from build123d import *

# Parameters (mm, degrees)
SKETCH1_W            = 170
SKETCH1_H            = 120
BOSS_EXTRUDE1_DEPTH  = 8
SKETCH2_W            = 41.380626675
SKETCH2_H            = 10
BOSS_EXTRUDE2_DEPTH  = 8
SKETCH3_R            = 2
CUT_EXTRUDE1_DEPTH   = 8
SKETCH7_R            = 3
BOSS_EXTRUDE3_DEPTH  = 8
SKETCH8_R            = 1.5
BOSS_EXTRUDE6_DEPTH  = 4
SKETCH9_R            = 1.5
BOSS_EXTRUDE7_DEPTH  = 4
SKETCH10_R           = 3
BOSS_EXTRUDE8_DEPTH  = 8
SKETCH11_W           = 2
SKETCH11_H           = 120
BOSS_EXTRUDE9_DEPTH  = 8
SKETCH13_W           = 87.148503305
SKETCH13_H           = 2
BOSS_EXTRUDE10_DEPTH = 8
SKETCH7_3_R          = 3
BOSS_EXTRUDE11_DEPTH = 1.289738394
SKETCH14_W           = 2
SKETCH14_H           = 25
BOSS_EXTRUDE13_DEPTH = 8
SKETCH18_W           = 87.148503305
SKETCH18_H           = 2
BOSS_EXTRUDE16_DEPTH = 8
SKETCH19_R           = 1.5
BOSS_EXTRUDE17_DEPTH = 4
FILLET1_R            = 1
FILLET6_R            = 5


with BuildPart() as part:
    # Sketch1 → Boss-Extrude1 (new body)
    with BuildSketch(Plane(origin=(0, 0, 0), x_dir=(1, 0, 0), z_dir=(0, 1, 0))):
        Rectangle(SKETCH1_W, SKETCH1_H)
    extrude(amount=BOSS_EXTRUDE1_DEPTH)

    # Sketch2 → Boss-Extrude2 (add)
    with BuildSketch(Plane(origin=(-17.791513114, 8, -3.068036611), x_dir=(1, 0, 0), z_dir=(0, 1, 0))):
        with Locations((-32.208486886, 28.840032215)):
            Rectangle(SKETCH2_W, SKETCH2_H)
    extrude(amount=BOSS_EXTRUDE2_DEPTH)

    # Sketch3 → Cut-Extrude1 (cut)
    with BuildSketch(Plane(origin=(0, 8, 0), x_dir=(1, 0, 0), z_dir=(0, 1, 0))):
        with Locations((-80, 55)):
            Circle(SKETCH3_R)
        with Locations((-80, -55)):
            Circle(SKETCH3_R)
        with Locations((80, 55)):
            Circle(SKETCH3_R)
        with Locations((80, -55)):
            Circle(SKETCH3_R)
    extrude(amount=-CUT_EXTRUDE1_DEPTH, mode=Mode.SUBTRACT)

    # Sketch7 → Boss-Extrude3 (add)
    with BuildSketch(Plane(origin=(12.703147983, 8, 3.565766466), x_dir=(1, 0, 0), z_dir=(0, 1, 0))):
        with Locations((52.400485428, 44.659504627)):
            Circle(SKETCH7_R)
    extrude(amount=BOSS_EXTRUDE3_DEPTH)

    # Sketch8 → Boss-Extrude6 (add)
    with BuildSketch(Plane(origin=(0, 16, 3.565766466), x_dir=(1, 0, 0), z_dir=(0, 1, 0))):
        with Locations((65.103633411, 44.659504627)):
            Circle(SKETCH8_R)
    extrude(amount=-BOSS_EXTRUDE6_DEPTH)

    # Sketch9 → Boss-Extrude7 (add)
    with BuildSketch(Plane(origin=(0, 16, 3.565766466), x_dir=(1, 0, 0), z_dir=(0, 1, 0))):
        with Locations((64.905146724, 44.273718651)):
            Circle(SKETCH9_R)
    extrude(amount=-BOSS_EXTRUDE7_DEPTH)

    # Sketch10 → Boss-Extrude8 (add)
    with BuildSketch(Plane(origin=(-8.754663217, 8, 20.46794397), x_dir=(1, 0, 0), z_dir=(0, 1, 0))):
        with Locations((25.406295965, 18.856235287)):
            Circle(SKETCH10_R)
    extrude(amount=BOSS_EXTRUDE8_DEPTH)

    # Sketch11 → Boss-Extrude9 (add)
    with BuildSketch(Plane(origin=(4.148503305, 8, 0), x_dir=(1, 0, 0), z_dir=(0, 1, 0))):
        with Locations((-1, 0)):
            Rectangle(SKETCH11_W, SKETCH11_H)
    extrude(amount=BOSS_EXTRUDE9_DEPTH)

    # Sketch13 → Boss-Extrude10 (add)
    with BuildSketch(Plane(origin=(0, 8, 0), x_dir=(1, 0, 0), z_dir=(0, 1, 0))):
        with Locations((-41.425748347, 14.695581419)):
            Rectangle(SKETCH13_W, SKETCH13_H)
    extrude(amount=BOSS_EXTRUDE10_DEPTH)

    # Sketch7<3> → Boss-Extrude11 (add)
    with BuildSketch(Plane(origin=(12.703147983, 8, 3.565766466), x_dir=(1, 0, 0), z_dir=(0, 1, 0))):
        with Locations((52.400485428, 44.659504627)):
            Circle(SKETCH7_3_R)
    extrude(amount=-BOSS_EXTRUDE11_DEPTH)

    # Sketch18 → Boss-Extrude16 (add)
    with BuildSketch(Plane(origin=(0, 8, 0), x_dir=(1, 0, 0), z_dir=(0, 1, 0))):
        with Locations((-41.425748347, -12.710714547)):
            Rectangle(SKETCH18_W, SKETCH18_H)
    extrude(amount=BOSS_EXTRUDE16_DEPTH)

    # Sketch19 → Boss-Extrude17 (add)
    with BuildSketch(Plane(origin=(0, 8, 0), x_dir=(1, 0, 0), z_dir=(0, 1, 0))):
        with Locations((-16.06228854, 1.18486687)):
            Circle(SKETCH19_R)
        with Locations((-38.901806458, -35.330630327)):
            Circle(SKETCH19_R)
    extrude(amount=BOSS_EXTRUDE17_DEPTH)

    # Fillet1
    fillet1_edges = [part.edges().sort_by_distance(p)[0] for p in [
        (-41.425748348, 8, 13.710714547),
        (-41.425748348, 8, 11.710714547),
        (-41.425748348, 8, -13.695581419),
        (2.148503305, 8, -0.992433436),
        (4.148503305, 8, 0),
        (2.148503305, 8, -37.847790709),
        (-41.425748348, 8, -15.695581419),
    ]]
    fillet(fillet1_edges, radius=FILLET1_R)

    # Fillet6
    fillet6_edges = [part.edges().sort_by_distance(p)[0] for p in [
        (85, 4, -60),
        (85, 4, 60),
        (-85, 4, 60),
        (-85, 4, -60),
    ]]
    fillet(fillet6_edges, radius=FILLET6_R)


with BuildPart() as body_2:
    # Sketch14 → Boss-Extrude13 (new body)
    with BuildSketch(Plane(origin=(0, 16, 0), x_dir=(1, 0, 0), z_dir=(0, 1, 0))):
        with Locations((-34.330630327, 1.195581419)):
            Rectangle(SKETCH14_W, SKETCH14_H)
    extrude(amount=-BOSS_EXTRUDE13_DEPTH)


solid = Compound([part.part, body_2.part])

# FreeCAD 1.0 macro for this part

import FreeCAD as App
import Part
import Sketcher

V = App.Vector
Q = App.Units.Quantity


def edges_at(feature, points):
    """Names of the edges that pass closest to the given points."""
    edges = feature.Shape.Edges
    near = lambda p: min(range(len(edges)), key=lambda i: edges[i].distToShape(Part.Vertex(*p))[0])
    return sorted({f"Edge{near(p) + 1}" for p in points})

doc = App.newDocument("Part")
params = doc.addObject("Spreadsheet::Sheet", "Params")
for row, (alias, value) in enumerate([
    ("sketch1_width", "170 mm"),
    ("sketch1_height", "120 mm"),
    ("pad1_length", "8 mm"),
    ("sketch2_height", "10 mm"),
    ("pad2_length", "8 mm"),
    ("sketch3_diameter", "4 mm"),
    ("pocket1_length", "8 mm"),
    ("sketch4_diameter", "6 mm"),
    ("pad3_length", "8 mm"),
    ("sketch5_diameter", "3 mm"),
    ("pad4_length", "4 mm"),
    ("sketch6_diameter", "3 mm"),
    ("pad5_length", "4 mm"),
    ("sketch7_diameter", "6 mm"),
    ("pad6_length", "8 mm"),
    ("sketch8_width", "2 mm"),
    ("sketch8_height", "120 mm"),
    ("pad7_length", "8 mm"),
    ("sketch9_height", "2 mm"),
    ("pad8_length", "8 mm"),
    ("sketch10_diameter", "6 mm"),
    ("pad9_length", "1.289738 mm"),
    ("sketch11_height", "2 mm"),
    ("pad10_length", "8 mm"),
    ("sketch12_diameter", "3 mm"),
    ("pad11_length", "4 mm"),
    ("fillet_radius", "1 mm"),
    ("fillet2_radius", "5 mm"),
    ("sketch13_width", "2 mm"),
    ("sketch13_height", "25 mm"),
    ("pad12_length", "8 mm"),
], start=1):
    params.set(f"A{row}", alias)
    params.set(f"B{row}", "=" + value)
    params.setAlias(f"B{row}", alias)

body = doc.addObject("PartDesign::Body", "Body")

# Sketch on XZ plane
sketch1 = doc.addObject("Sketcher::SketchObject", "Sketch")
body.addObject(sketch1)
sketch1.AttachmentSupport = (doc.XZ_Plane, [""])
sketch1.MapMode = "FlatFace"
sketch1.addGeometry([
    Part.LineSegment(V(-85, -60, 0), V(-85, 60, 0)),
    Part.LineSegment(V(-85, 60, 0), V(85, 60, 0)),
    Part.LineSegment(V(85, 60, 0), V(85, -60, 0)),
    Part.LineSegment(V(85, -60, 0), V(-85, -60, 0)),
], False)
sketch1.addConstraint([
    Sketcher.Constraint("Coincident", 0, 2, 1, 1),
    Sketcher.Constraint("Coincident", 1, 2, 2, 1),
    Sketcher.Constraint("Coincident", 2, 2, 3, 1),
    Sketcher.Constraint("Coincident", 3, 2, 0, 1),
    Sketcher.Constraint("Vertical", 0),
    Sketcher.Constraint("Horizontal", 1),
    Sketcher.Constraint("Vertical", 2),
    Sketcher.Constraint("Horizontal", 3),
    Sketcher.Constraint("Symmetric", 0, 2, 2, 2, -1, 1),
    Sketcher.Constraint("DistanceX", 1, 1, 1, 2, Q("170 mm")),
    Sketcher.Constraint("DistanceY", 0, 1, 0, 2, Q("120 mm")),
])
sketch1.setExpression("Constraints[9]", "Params.sketch1_width")
sketch1.setExpression("Constraints[10]", "Params.sketch1_height")
pad1 = doc.addObject("PartDesign::Pad", "Pad")
body.addObject(pad1)
pad1.Profile = sketch1
pad1.setExpression("Length", "Params.pad1_length")
pad1.Reversed = True

# Sketch on XZ plane
sketch2 = doc.addObject("Sketcher::SketchObject", "Sketch001")
body.addObject(sketch2)
sketch2.AttachmentSupport = (doc.XZ_Plane, [""])
sketch2.MapMode = "FlatFace"
sketch2.AttachmentOffset = App.Placement(V(0, 0, -8), App.Rotation())
sketch2.addGeometry([
    Part.LineSegment(V(-71, -37, 0), V(-71, -27, 0)),
    Part.LineSegment(V(-71, -27, 0), V(-29, -27, 0)),
    Part.LineSegment(V(-29, -27, 0), V(-29, -37, 0)),
    Part.LineSegment(V(-29, -37, 0), V(-71, -37, 0)),
], False)
sketch2.addConstraint([
    Sketcher.Constraint("Coincident", 0, 2, 1, 1),
    Sketcher.Constraint("Coincident", 1, 2, 2, 1),
    Sketcher.Constraint("Coincident", 2, 2, 3, 1),
    Sketcher.Constraint("Coincident", 3, 2, 0, 1),
    Sketcher.Constraint("Vertical", 0),
    Sketcher.Constraint("Horizontal", 1),
    Sketcher.Constraint("Vertical", 2),
    Sketcher.Constraint("Horizontal", 3),
    Sketcher.Constraint("DistanceY", 0, 1, 0, 2, Q("10 mm")),
    Sketcher.Constraint("DistanceX", 1, 1, 1, 2, Q("41.380627 mm")),
    Sketcher.Constraint("DistanceY", 0, 2, -1, 1, Q("26.908069 mm")),
    Sketcher.Constraint("DistanceX", 0, 2, -1, 1, Q("70.690313 mm")),
])
sketch2.setExpression("Constraints[8]", "Params.sketch2_height")
pad2 = doc.addObject("PartDesign::Pad", "Pad001")
body.addObject(pad2)
pad2.Profile = sketch2
pad2.setExpression("Length", "Params.pad2_length")
pad2.Reversed = True

# Sketch on XZ plane
sketch3 = doc.addObject("Sketcher::SketchObject", "Sketch002")
body.addObject(sketch3)
sketch3.AttachmentSupport = (doc.XZ_Plane, [""])
sketch3.MapMode = "FlatFace"
sketch3.AttachmentOffset = App.Placement(V(0, 0, -8), App.Rotation())
sketch3.addGeometry([
    Part.Circle(V(-80, -55, 0), V(0, 0, 1), 2),
    Part.Circle(V(-80, 55, 0), V(0, 0, 1), 2),
    Part.Circle(V(80, -55, 0), V(0, 0, 1), 2),
    Part.Circle(V(80, 55, 0), V(0, 0, 1), 2),
], False)
sketch3.addConstraint([
    Sketcher.Constraint("Equal", 0, 1),
    Sketcher.Constraint("Equal", 1, 2),
    Sketcher.Constraint("Equal", 2, 3),
    Sketcher.Constraint("Symmetric", 1, 3, 2, 3, -1, 1),
    Sketcher.Constraint("Symmetric", 0, 3, 3, 3, -1, 1),
    Sketcher.Constraint("Symmetric", 0, 3, 2, 3, -2),
    Sketcher.Constraint("Diameter", 0, Q("4 mm")),
    Sketcher.Constraint("DistanceX", 0, 3, -1, 1, Q("80 mm")),
    Sketcher.Constraint("DistanceY", 0, 3, -1, 1, Q("55 mm")),
])
sketch3.setExpression("Constraints[6]", "Params.sketch3_diameter")
pocket1 = doc.addObject("PartDesign::Pocket", "Pocket")
body.addObject(pocket1)
pocket1.Profile = sketch3
pocket1.setExpression("Length", "Params.pocket1_length")
pocket1.Reversed = True

# Sketch on XZ plane
sketch4 = doc.addObject("Sketcher::SketchObject", "Sketch003")
body.addObject(sketch4)
sketch4.AttachmentSupport = (doc.XZ_Plane, [""])
sketch4.MapMode = "FlatFace"
sketch4.AttachmentOffset = App.Placement(V(0, 0, -8), App.Rotation())
sketch4.addGeometry(Part.Circle(V(65.1, -41.1, 0), V(0, 0, 1), 3), False)
sketch4.addConstraint([
    Sketcher.Constraint("Diameter", 0, Q("6 mm")),
    Sketcher.Constraint("DistanceY", 0, 3, -1, 1, Q("41.093738 mm")),
    Sketcher.Constraint("DistanceX", -1, 1, 0, 3, Q("65.103633 mm")),
])
sketch4.setExpression("Constraints[0]", "Params.sketch4_diameter")
pad3 = doc.addObject("PartDesign::Pad", "Pad002")
body.addObject(pad3)
pad3.Profile = sketch4
pad3.setExpression("Length", "Params.pad3_length")
pad3.Reversed = True

# Sketch on XZ plane
sketch5 = doc.addObject("Sketcher::SketchObject", "Sketch004")
body.addObject(sketch5)
sketch5.AttachmentSupport = (doc.XZ_Plane, [""])
sketch5.MapMode = "FlatFace"
sketch5.AttachmentOffset = App.Placement(V(0, 0, -16), App.Rotation())
sketch5.addGeometry(Part.Circle(V(65.1, -41.1, 0), V(0, 0, 1), 1.5), False)
sketch5.addConstraint([
    Sketcher.Constraint("Diameter", 0, Q("3 mm")),
    Sketcher.Constraint("DistanceY", 0, 3, -1, 1, Q("41.093738 mm")),
    Sketcher.Constraint("DistanceX", -1, 1, 0, 3, Q("65.103633 mm")),
])
sketch5.setExpression("Constraints[0]", "Params.sketch5_diameter")
pad4 = doc.addObject("PartDesign::Pad", "Pad003")
body.addObject(pad4)
pad4.Profile = sketch5
pad4.setExpression("Length", "Params.pad4_length")

# Sketch on XZ plane
sketch6 = doc.addObject("Sketcher::SketchObject", "Sketch005")
body.addObject(sketch6)
sketch6.AttachmentSupport = (doc.XZ_Plane, [""])
sketch6.MapMode = "FlatFace"
sketch6.AttachmentOffset = App.Placement(V(0, 0, -16), App.Rotation())
sketch6.addGeometry(Part.Circle(V(64.9, -40.7, 0), V(0, 0, 1), 1.5), False)
sketch6.addConstraint([
    Sketcher.Constraint("Diameter", 0, Q("3 mm")),
    Sketcher.Constraint("DistanceX", -1, 1, 0, 3, Q("64.905147 mm")),
    Sketcher.Constraint("DistanceY", 0, 3, -1, 1, Q("40.707952 mm")),
])
sketch6.setExpression("Constraints[0]", "Params.sketch6_diameter")
pad5 = doc.addObject("PartDesign::Pad", "Pad004")
body.addObject(pad5)
pad5.Profile = sketch6
pad5.setExpression("Length", "Params.pad5_length")

# Sketch on XZ plane
sketch7 = doc.addObject("Sketcher::SketchObject", "Sketch006")
body.addObject(sketch7)
sketch7.AttachmentSupport = (doc.XZ_Plane, [""])
sketch7.MapMode = "FlatFace"
sketch7.AttachmentOffset = App.Placement(V(0, 0, -8), App.Rotation())
sketch7.addGeometry(Part.Circle(V(16.7, 1.6, 0), V(0, 0, 1), 3), False)
sketch7.addConstraint([
    Sketcher.Constraint("Diameter", 0, Q("6 mm")),
    Sketcher.Constraint("DistanceY", -1, 1, 0, 3, Q("1.611709 mm")),
    Sketcher.Constraint("DistanceX", -1, 1, 0, 3, Q("16.651633 mm")),
])
sketch7.setExpression("Constraints[0]", "Params.sketch7_diameter")
pad6 = doc.addObject("PartDesign::Pad", "Pad005")
body.addObject(pad6)
pad6.Profile = sketch7
pad6.setExpression("Length", "Params.pad6_length")
pad6.Reversed = True

# Sketch on XZ plane
sketch8 = doc.addObject("Sketcher::SketchObject", "Sketch007")
body.addObject(sketch8)
sketch8.AttachmentSupport = (doc.XZ_Plane, [""])
sketch8.MapMode = "FlatFace"
sketch8.AttachmentOffset = App.Placement(V(0, 0, -8), App.Rotation())
sketch8.addGeometry([
    Part.LineSegment(V(2.1, -60, 0), V(2.1, 60, 0)),
    Part.LineSegment(V(2.1, 60, 0), V(4.1, 60, 0)),
    Part.LineSegment(V(4.1, 60, 0), V(4.1, -60, 0)),
    Part.LineSegment(V(4.1, -60, 0), V(2.1, -60, 0)),
], False)
sketch8.addConstraint([
    Sketcher.Constraint("Coincident", 0, 2, 1, 1),
    Sketcher.Constraint("Coincident", 1, 2, 2, 1),
    Sketcher.Constraint("Coincident", 2, 2, 3, 1),
    Sketcher.Constraint("Coincident", 3, 2, 0, 1),
    Sketcher.Constraint("Vertical", 0),
    Sketcher.Constraint("Horizontal", 1),
    Sketcher.Constraint("Vertical", 2),
    Sketcher.Constraint("Horizontal", 3),
    Sketcher.Constraint("DistanceX", 1, 1, 1, 2, Q("2 mm")),
    Sketcher.Constraint("DistanceY", 0, 1, 0, 2, Q("120 mm")),
    Sketcher.Constraint("DistanceY", -1, 1, 0, 2, Q("60 mm")),
    Sketcher.Constraint("DistanceX", -1, 1, 0, 2, Q("2.148503 mm")),
])
sketch8.setExpression("Constraints[8]", "Params.sketch8_width")
sketch8.setExpression("Constraints[9]", "Params.sketch8_height")
pad7 = doc.addObject("PartDesign::Pad", "Pad006")
body.addObject(pad7)
pad7.Profile = sketch8
pad7.setExpression("Length", "Params.pad7_length")
pad7.Reversed = True

# Sketch on XZ plane
sketch9 = doc.addObject("Sketcher::SketchObject", "Sketch008")
body.addObject(sketch9)
sketch9.AttachmentSupport = (doc.XZ_Plane, [""])
sketch9.MapMode = "FlatFace"
sketch9.AttachmentOffset = App.Placement(V(0, 0, -8), App.Rotation())
sketch9.addGeometry([
    Part.LineSegment(V(-85, -15.7, 0), V(-85, -13.7, 0)),
    Part.LineSegment(V(-85, -13.7, 0), V(2.1, -13.7, 0)),
    Part.LineSegment(V(2.1, -13.7, 0), V(2.1, -15.7, 0)),
    Part.LineSegment(V(2.1, -15.7, 0), V(-85, -15.7, 0)),
], False)
sketch9.addConstraint([
    Sketcher.Constraint("Coincident", 0, 2, 1, 1),
    Sketcher.Constraint("Coincident", 1, 2, 2, 1),
    Sketcher.Constraint("Coincident", 2, 2, 3, 1),
    Sketcher.Constraint("Coincident", 3, 2, 0, 1),
    Sketcher.Constraint("Vertical", 0),
    Sketcher.Constraint("Horizontal", 1),
    Sketcher.Constraint("Vertical", 2),
    Sketcher.Constraint("Horizontal", 3),
    Sketcher.Constraint("DistanceY", 0, 1, 0, 2, Q("2 mm")),
    Sketcher.Constraint("DistanceX", 0, 2, -1, 1, Q("85 mm")),
    Sketcher.Constraint("DistanceX", 1, 1, 1, 2, Q("87.148503 mm")),
    Sketcher.Constraint("DistanceY", 0, 2, -1, 1, Q("13.695581 mm")),
])
sketch9.setExpression("Constraints[8]", "Params.sketch9_height")
pad8 = doc.addObject("PartDesign::Pad", "Pad007")
body.addObject(pad8)
pad8.Profile = sketch9
pad8.setExpression("Length", "Params.pad8_length")
pad8.Reversed = True

# Sketch on XZ plane
sketch10 = doc.addObject("Sketcher::SketchObject", "Sketch009")
body.addObject(sketch10)
sketch10.AttachmentSupport = (doc.XZ_Plane, [""])
sketch10.MapMode = "FlatFace"
sketch10.AttachmentOffset = App.Placement(V(0, 0, -8), App.Rotation())
sketch10.addGeometry(Part.Circle(V(65.1, -41.1, 0), V(0, 0, 1), 3), False)
sketch10.addConstraint([
    Sketcher.Constraint("Diameter", 0, Q("6 mm")),
    Sketcher.Constraint("DistanceY", 0, 3, -1, 1, Q("41.093738 mm")),
    Sketcher.Constraint("DistanceX", -1, 1, 0, 3, Q("65.103633 mm")),
])
sketch10.setExpression("Constraints[0]", "Params.sketch10_diameter")
pad9 = doc.addObject("PartDesign::Pad", "Pad008")
body.addObject(pad9)
pad9.Profile = sketch10
pad9.setExpression("Length", "Params.pad9_length")

# Sketch on XZ plane
sketch11 = doc.addObject("Sketcher::SketchObject", "Sketch010")
body.addObject(sketch11)
sketch11.AttachmentSupport = (doc.XZ_Plane, [""])
sketch11.MapMode = "FlatFace"
sketch11.AttachmentOffset = App.Placement(V(0, 0, -8), App.Rotation())
sketch11.addGeometry([
    Part.LineSegment(V(-85, 11.7, 0), V(-85, 13.7, 0)),
    Part.LineSegment(V(-85, 13.7, 0), V(2.1, 13.7, 0)),
    Part.LineSegment(V(2.1, 13.7, 0), V(2.1, 11.7, 0)),
    Part.LineSegment(V(2.1, 11.7, 0), V(-85, 11.7, 0)),
], False)
sketch11.addConstraint([
    Sketcher.Constraint("Coincident", 0, 2, 1, 1),
    Sketcher.Constraint("Coincident", 1, 2, 2, 1),
    Sketcher.Constraint("Coincident", 2, 2, 3, 1),
    Sketcher.Constraint("Coincident", 3, 2, 0, 1),
    Sketcher.Constraint("Vertical", 0),
    Sketcher.Constraint("Horizontal", 1),
    Sketcher.Constraint("Vertical", 2),
    Sketcher.Constraint("Horizontal", 3),
    Sketcher.Constraint("DistanceY", 0, 1, 0, 2, Q("2 mm")),
    Sketcher.Constraint("DistanceX", 0, 2, -1, 1, Q("85 mm")),
    Sketcher.Constraint("DistanceX", 1, 1, 1, 2, Q("87.148503 mm")),
    Sketcher.Constraint("DistanceY", -1, 1, 0, 2, Q("13.710715 mm")),
])
sketch11.setExpression("Constraints[8]", "Params.sketch11_height")
pad10 = doc.addObject("PartDesign::Pad", "Pad009")
body.addObject(pad10)
pad10.Profile = sketch11
pad10.setExpression("Length", "Params.pad10_length")
pad10.Reversed = True

# Sketch on XZ plane
sketch12 = doc.addObject("Sketcher::SketchObject", "Sketch011")
body.addObject(sketch12)
sketch12.AttachmentSupport = (doc.XZ_Plane, [""])
sketch12.MapMode = "FlatFace"
sketch12.AttachmentOffset = App.Placement(V(0, 0, -8), App.Rotation())
sketch12.addGeometry([
    Part.Circle(V(-16.1, -1.2, 0), V(0, 0, 1), 1.5),
    Part.Circle(V(-38.9, 35.3, 0), V(0, 0, 1), 1.5),
], False)
sketch12.addConstraint([
    Sketcher.Constraint("Equal", 0, 1),
    Sketcher.Constraint("Diameter", 0, Q("3 mm")),
    Sketcher.Constraint("DistanceX", 0, 3, -1, 1, Q("16.062289 mm")),
    Sketcher.Constraint("DistanceY", -1, 1, 1, 3, Q("35.33063 mm")),
    Sketcher.Constraint("DistanceY", 0, 3, -1, 1, Q("1.184867 mm")),
    Sketcher.Constraint("DistanceX", 1, 3, -1, 1, Q("38.901806 mm")),
])
sketch12.setExpression("Constraints[1]", "Params.sketch12_diameter")
pad11 = doc.addObject("PartDesign::Pad", "Pad010")
body.addObject(pad11)
pad11.Profile = sketch12
pad11.setExpression("Length", "Params.pad11_length")
pad11.Reversed = True
doc.recompute()

fillet = doc.addObject("PartDesign::Fillet", "Fillet")
body.addObject(fillet)
fillet.Base = (pad11, edges_at(pad11, [
    (-41.426, 8, 13.711),
    (-41.426, 8, 11.711),
    (-41.426, 8, -13.696),
    (2.149, 8, -0.992),
    (4.149, 8, 0),
    (2.149, 8, -37.848),
    (-41.426, 8, -15.696),
]))
fillet.setExpression("Radius", "Params.fillet_radius")
doc.recompute()

fillet2 = doc.addObject("PartDesign::Fillet", "Fillet001")
body.addObject(fillet2)
fillet2.Base = (fillet, edges_at(fillet, [
    (85, 4, -60),
    (85, 4, 60),
    (-85, 4, 60),
    (-85, 4, -60),
]))
fillet2.setExpression("Radius", "Params.fillet2_radius")
body2 = doc.addObject("PartDesign::Body", "Body001")

# Sketch on XZ plane
sketch13 = doc.addObject("Sketcher::SketchObject", "Sketch012")
body2.addObject(sketch13)
sketch13.AttachmentSupport = (doc.getObject("XZ_Plane001"), [""])
sketch13.MapMode = "FlatFace"
sketch13.AttachmentOffset = App.Placement(V(0, 0, -16), App.Rotation())
sketch13.addGeometry([
    Part.LineSegment(V(-35.3, -13.7, 0), V(-35.3, 11.3, 0)),
    Part.LineSegment(V(-35.3, 11.3, 0), V(-33.3, 11.3, 0)),
    Part.LineSegment(V(-33.3, 11.3, 0), V(-33.3, -13.7, 0)),
    Part.LineSegment(V(-33.3, -13.7, 0), V(-35.3, -13.7, 0)),
], False)
sketch13.addConstraint([
    Sketcher.Constraint("Coincident", 0, 2, 1, 1),
    Sketcher.Constraint("Coincident", 1, 2, 2, 1),
    Sketcher.Constraint("Coincident", 2, 2, 3, 1),
    Sketcher.Constraint("Coincident", 3, 2, 0, 1),
    Sketcher.Constraint("Vertical", 0),
    Sketcher.Constraint("Horizontal", 1),
    Sketcher.Constraint("Vertical", 2),
    Sketcher.Constraint("Horizontal", 3),
    Sketcher.Constraint("DistanceX", 1, 1, 1, 2, Q("2 mm")),
    Sketcher.Constraint("DistanceY", 0, 1, 0, 2, Q("25 mm")),
    Sketcher.Constraint("DistanceX", 0, 2, -1, 1, Q("35.33063 mm")),
    Sketcher.Constraint("DistanceY", -1, 1, 0, 2, Q("11.304419 mm")),
])
sketch13.setExpression("Constraints[8]", "Params.sketch13_width")
sketch13.setExpression("Constraints[9]", "Params.sketch13_height")
pad12 = doc.addObject("PartDesign::Pad", "Pad011")
body2.addObject(pad12)
pad12.Profile = sketch13
pad12.setExpression("Length", "Params.pad12_length")

doc.recompute()
